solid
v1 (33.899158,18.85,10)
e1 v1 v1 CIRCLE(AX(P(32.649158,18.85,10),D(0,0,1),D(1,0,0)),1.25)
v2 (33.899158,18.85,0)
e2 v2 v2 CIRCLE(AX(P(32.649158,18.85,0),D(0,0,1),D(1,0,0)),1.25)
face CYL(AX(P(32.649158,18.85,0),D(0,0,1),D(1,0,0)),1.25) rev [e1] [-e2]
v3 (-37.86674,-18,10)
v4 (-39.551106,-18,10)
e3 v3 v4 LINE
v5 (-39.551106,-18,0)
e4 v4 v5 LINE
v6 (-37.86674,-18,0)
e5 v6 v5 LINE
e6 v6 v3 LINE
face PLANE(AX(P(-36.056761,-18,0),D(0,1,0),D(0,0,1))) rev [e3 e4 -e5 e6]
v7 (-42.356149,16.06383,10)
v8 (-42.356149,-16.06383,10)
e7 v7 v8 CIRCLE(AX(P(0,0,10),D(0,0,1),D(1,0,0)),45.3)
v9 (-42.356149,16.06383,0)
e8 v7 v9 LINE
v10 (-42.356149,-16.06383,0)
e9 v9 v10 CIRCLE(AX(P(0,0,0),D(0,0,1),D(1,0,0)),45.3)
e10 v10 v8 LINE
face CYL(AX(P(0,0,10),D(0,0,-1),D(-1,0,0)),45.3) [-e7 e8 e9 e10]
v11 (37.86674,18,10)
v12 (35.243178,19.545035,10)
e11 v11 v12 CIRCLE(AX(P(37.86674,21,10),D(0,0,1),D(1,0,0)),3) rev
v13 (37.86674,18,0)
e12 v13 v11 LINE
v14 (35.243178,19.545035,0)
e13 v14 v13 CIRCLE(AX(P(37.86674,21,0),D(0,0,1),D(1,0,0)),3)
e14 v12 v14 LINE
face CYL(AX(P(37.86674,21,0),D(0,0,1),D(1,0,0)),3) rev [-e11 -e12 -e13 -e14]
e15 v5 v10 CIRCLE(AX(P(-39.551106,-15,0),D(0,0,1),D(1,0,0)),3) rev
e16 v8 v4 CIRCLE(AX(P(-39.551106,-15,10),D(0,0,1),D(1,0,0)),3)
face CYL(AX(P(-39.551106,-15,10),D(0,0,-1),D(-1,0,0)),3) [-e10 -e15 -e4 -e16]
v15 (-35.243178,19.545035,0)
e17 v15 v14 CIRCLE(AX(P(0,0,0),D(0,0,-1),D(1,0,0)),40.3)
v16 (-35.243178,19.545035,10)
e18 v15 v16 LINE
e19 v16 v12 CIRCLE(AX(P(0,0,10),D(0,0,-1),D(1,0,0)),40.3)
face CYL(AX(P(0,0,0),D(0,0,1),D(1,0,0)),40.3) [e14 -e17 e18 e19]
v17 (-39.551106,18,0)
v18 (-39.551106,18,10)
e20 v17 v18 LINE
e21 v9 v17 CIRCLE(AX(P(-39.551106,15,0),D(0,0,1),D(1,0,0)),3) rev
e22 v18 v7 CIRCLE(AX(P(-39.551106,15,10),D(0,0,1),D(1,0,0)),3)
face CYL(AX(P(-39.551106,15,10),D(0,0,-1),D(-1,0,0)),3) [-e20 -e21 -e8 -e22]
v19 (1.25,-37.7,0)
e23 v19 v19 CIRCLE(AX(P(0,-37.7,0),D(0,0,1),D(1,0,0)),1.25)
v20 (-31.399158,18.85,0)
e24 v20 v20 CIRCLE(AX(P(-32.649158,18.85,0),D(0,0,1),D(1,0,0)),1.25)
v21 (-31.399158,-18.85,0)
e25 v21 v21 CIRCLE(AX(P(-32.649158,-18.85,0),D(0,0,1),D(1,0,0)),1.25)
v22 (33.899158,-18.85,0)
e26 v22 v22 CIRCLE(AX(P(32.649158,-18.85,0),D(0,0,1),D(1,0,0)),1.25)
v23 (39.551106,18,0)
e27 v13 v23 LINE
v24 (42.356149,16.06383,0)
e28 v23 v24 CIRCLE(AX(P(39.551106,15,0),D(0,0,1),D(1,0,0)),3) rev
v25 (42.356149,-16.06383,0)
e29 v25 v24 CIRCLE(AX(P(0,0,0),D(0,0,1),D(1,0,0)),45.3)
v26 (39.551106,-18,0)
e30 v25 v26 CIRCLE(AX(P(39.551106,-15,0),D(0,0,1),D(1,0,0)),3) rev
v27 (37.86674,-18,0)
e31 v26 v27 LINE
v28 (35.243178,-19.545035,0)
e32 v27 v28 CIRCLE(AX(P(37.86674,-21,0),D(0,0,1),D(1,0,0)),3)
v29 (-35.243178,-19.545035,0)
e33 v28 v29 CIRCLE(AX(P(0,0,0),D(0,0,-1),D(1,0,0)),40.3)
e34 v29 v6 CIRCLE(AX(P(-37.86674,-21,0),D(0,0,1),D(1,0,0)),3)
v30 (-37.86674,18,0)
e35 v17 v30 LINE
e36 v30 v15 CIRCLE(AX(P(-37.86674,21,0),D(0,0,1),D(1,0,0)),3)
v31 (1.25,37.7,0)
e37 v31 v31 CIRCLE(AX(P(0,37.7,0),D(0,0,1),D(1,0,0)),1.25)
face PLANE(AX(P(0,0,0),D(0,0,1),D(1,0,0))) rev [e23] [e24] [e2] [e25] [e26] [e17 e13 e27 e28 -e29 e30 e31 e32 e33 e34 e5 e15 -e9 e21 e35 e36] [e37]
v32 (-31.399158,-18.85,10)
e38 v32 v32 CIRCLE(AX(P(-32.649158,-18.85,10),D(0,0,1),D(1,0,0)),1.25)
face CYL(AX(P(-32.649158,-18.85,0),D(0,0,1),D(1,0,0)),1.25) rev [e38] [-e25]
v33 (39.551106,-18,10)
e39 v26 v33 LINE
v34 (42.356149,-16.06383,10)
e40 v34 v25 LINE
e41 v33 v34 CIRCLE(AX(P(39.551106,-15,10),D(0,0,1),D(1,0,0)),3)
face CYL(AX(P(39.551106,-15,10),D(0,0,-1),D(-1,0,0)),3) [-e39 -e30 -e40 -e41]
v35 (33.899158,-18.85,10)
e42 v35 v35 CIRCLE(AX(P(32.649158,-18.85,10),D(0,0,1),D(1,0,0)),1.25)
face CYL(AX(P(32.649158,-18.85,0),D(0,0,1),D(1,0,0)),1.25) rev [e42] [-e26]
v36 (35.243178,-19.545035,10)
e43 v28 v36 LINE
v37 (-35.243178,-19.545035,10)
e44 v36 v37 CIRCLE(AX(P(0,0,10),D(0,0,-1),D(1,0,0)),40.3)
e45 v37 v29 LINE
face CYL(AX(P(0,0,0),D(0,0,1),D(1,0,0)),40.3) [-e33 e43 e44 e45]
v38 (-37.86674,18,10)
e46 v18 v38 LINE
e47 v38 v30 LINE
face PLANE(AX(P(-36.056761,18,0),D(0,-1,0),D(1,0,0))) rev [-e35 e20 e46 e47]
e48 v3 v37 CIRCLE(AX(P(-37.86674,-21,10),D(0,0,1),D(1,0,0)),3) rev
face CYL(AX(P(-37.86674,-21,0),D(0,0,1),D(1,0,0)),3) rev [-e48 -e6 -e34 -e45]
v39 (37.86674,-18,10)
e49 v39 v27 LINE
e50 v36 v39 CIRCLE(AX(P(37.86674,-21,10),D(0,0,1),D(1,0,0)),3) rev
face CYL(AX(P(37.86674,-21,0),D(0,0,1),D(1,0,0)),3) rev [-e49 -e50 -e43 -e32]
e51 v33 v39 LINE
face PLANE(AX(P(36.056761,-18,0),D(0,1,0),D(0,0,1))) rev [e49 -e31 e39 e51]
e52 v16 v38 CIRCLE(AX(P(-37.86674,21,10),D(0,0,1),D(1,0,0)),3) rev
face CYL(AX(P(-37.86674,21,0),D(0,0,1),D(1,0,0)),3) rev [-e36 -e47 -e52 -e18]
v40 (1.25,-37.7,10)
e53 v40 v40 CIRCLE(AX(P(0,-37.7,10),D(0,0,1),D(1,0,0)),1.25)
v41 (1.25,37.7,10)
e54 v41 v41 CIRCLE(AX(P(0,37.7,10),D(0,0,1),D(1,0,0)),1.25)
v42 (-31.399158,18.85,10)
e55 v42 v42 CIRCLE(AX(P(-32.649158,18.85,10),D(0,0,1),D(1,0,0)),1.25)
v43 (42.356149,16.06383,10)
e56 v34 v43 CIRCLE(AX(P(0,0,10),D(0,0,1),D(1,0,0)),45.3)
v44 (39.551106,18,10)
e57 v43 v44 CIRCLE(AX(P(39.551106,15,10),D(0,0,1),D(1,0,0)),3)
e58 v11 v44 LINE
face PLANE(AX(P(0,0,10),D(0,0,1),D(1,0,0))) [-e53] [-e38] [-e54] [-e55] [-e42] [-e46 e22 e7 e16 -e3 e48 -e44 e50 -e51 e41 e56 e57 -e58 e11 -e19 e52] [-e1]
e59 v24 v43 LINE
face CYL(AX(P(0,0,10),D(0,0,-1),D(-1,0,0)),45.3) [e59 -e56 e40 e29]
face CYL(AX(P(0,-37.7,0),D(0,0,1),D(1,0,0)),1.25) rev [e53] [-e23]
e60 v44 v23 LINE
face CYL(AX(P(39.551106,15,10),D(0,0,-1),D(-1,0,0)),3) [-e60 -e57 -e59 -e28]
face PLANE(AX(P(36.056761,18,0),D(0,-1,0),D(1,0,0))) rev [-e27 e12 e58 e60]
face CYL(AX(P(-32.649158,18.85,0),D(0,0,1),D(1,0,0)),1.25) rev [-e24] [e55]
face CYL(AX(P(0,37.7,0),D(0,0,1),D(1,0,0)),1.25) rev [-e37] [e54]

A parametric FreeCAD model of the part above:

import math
import FreeCAD as App
import Part
import Sketcher
Q = App.Units.Quantity


def edges_at(feature, points):
    """Names of the edges that pass closest to the given points."""
    edges = feature.Shape.Edges
    near = lambda p: min(range(len(edges)), key=lambda i: edges[i].distToShape(Part.Vertex(*p))[0])
    return sorted({f"Edge{near(p) + 1}" for p in points})

doc = App.newDocument("Part")
body = doc.addObject("PartDesign::Body", "Body")

sketch1 = body.newObject("Sketcher::SketchObject", "Sketch")
sketch1.AttachmentSupport = (doc.getObject("XY_Plane"), [""])
sketch1.MapMode = "FlatFace"
sketch1.addGeometry(Part.Circle(App.Vector(0, 0, 0), App.Vector(0, 0, 1), 45), False)
sketch1.addConstraint([
    Sketcher.Constraint("Coincident", 0, 3, -1, 1),
    Sketcher.Constraint("Diameter", 0, Q("90.6 mm")),
])
pad1 = body.newObject("PartDesign::Pad", "Pad")
pad1.Profile = sketch1
pad1.Length = 10

sketch2 = body.newObject("Sketcher::SketchObject", "Sketch001")
sketch2.AttachmentSupport = (doc.getObject("XY_Plane"), [""])
sketch2.MapMode = "FlatFace"
sketch2.AttachmentOffset = App.Placement(App.Vector(0, 0, 10), App.Rotation())
sketch2.addGeometry([
    Part.LineSegment(App.Vector(-42, 18, 0), App.Vector(-36, 18, 0)),
    Part.ArcOfCircle(Part.Circle(App.Vector(0, 0, 0), App.Vector(0, 0, 1), 40), math.radians(27), math.radians(153)),
    Part.LineSegment(App.Vector(36, 18, 0), App.Vector(42, 18, 0)),
    Part.ArcOfCircle(Part.Circle(App.Vector(0, 0, 0), App.Vector(0, 0, 1), 45), math.radians(23), math.radians(157)),
    Part.LineSegment(App.Vector(-36, -18, 0), App.Vector(-42, -18, 0)),
    Part.ArcOfCircle(Part.Circle(App.Vector(0, 0, 0), App.Vector(0, 0, 1), 45), math.radians(-157), math.radians(-23)),
    Part.LineSegment(App.Vector(42, -18, 0), App.Vector(36, -18, 0)),
    Part.ArcOfCircle(Part.Circle(App.Vector(0, 0, 0), App.Vector(0, 0, 1), 40), math.radians(-153), math.radians(-27)),
], False)
sketch2.addConstraint([
    Sketcher.Constraint("Coincident", 0, 2, 1, 2),
    Sketcher.Constraint("Coincident", 1, 1, 2, 1),
    Sketcher.Constraint("Coincident", 2, 2, 3, 1),
    Sketcher.Constraint("Coincident", 3, 2, 0, 1),
    Sketcher.Constraint("Coincident", 4, 2, 5, 1),
    Sketcher.Constraint("Coincident", 5, 2, 6, 1),
    Sketcher.Constraint("Coincident", 6, 2, 7, 2),
    Sketcher.Constraint("Coincident", 7, 1, 4, 1),
    Sketcher.Constraint("Horizontal", 0),
    Sketcher.Constraint("Horizontal", 2),
    Sketcher.Constraint("Horizontal", 4),
    Sketcher.Constraint("Horizontal", 6),
    Sketcher.Constraint("Coincident", 1, 3, -1, 1),
    Sketcher.Constraint("Coincident", 3, 3, -1, 1),
    Sketcher.Constraint("Coincident", 5, 3, -1, 1),
    Sketcher.Constraint("Coincident", 7, 3, -1, 1),
    Sketcher.Constraint("Equal", 1, 7),
    Sketcher.Constraint("Horizontal", 0, 2, 1, 1),
    Sketcher.Constraint("Horizontal", 4, 2, 5, 2),
    Sketcher.Constraint("Vertical", 1, 1, 6, 2),
    Sketcher.Constraint("Radius", 1, Q("40.3 mm")),
    Sketcher.Constraint("Radius", 3, Q("45.3 mm")),
    Sketcher.Constraint("DistanceY", -1, 1, 0, 2, Q("18 mm")),
    Sketcher.Constraint("Radius", 5, Q("45.450838 mm")),
])
pocket1 = body.newObject("PartDesign::Pocket", "Pocket")
pocket1.Profile = sketch2
pocket1.Type = "ThroughAll"
doc.recompute()

fillet = body.newObject("PartDesign::Fillet", "Fillet")
fillet.Base = (pocket1, edges_at(pocket1, [
    (36.057, 18, 5),
    (-36.057, 18, 5),
    (-41.57, 18, 5),
    (41.57, 18, 5),
    (41.57, -18, 5),
    (36.057, -18, 5),
    (-41.57, -18, 5),
    (-36.057, -18, 5),
]))
fillet.Radius = 3

sketch3 = body.newObject("Sketcher::SketchObject", "Sketch002")
sketch3.AttachmentSupport = (doc.getObject("XY_Plane"), [""])
sketch3.MapMode = "FlatFace"
sketch3.AttachmentOffset = App.Placement(App.Vector(0, 0, 10), App.Rotation())
sketch3.addGeometry([
    Part.Circle(App.Vector(0, 37.7, 0), App.Vector(0, 0, 1), 1.2),
    Part.Circle(App.Vector(32.6, 18.9, 0), App.Vector(0, 0, 1), 1.2),
    Part.Circle(App.Vector(32.6, -18.9, 0), App.Vector(0, 0, 1), 1.2),
    Part.Circle(App.Vector(0, -37.7, 0), App.Vector(0, 0, 1), 1.2),
    Part.Circle(App.Vector(-32.6, -18.9, 0), App.Vector(0, 0, 1), 1.2),
    Part.Circle(App.Vector(-32.6, 18.9, 0), App.Vector(0, 0, 1), 1.2),
], False)
sketch3.addConstraint([
    Sketcher.Constraint("Equal", 0, 1),
    Sketcher.Constraint("Equal", 1, 2),
    Sketcher.Constraint("Equal", 2, 3),
    Sketcher.Constraint("Equal", 3, 4),
    Sketcher.Constraint("Equal", 4, 5),
    Sketcher.Constraint("Symmetric", 0, 3, 3, 3, -1, 1),
    Sketcher.Constraint("Symmetric", 1, 3, 4, 3, -1, 1),
    Sketcher.Constraint("Symmetric", 2, 3, 5, 3, -1, 1),
    Sketcher.Constraint("Symmetric", 2, 3, 4, 3, -2),
    Sketcher.Constraint("PointOnObject", 0, 3, -2),
    Sketcher.Constraint("Diameter", 0, Q("2.5 mm")),
    Sketcher.Constraint("DistanceY", -1, 1, 0, 3, Q("37.7 mm")),
    Sketcher.Constraint("DistanceY", 2, 3, 1, 3, Q("37.7 mm")),
    Sketcher.Constraint("DistanceX", -1, 1, 1, 3, Q("32.649158 mm")),
])
pocket2 = body.newObject("PartDesign::Pocket", "Pocket001")
pocket2.Profile = sketch3
pocket2.Type = "ThroughAll"

doc.recompute()
